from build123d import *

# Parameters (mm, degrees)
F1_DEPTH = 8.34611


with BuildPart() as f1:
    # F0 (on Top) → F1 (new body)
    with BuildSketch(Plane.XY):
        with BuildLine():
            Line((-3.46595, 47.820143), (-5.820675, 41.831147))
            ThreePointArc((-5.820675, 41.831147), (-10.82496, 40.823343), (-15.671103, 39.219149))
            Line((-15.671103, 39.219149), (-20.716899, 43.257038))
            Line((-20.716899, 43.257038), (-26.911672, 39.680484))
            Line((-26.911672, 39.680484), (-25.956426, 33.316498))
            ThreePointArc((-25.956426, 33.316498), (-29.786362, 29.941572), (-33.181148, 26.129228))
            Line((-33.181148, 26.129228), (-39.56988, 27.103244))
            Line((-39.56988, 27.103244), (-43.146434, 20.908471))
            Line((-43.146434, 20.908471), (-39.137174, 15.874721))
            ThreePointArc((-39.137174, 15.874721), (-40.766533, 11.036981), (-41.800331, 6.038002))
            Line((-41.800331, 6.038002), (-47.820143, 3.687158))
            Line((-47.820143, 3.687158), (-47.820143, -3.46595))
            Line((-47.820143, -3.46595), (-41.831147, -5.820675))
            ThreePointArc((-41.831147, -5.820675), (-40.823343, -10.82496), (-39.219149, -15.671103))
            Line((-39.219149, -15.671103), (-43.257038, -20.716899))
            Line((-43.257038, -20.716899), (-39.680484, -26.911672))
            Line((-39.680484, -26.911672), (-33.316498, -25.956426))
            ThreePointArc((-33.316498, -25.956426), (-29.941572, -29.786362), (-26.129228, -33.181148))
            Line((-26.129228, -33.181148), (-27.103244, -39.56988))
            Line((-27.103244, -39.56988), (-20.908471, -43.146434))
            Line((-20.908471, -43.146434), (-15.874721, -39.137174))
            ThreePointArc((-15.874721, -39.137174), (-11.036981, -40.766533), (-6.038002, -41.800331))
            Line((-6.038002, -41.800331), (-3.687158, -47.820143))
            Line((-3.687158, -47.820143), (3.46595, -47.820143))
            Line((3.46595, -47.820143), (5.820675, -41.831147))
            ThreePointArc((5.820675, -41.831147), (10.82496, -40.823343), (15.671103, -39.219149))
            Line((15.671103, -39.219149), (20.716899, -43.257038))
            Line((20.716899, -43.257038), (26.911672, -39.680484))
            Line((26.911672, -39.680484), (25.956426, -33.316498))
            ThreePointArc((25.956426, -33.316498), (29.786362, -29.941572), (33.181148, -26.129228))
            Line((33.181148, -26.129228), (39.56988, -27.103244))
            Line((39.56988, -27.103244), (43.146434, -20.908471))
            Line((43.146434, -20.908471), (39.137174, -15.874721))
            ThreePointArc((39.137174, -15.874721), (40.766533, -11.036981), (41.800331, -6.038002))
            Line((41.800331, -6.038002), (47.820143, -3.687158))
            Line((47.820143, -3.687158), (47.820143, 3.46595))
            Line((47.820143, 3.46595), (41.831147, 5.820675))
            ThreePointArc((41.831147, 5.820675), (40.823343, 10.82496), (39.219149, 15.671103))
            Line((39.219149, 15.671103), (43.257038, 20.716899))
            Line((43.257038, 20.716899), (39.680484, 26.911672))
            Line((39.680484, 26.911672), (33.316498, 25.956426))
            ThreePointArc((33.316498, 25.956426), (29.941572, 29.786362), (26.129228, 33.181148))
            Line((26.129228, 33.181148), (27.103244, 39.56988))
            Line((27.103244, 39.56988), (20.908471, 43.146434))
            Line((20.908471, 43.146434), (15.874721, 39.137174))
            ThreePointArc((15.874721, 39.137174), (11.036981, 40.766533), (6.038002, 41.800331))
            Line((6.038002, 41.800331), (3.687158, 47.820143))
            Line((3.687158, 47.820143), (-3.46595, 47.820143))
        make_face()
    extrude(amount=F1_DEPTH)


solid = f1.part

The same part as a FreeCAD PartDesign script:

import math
import FreeCAD as App
import Part
import Sketcher

V = App.Vector
Q = App.Units.Quantity

doc = App.newDocument("Part")
body = doc.addObject("PartDesign::Body", "Body")

# Sketch on XY plane
sketch1 = body.newObject("Sketcher::SketchObject", "Sketch")
sketch1.AttachmentSupport = (doc.getObject("XY_Plane"), [""])
sketch1.MapMode = "FlatFace"
sketch1.addGeometry([
    Part.LineSegment(V(-3.46595, 47.820143, 0), V(-5.820675, 41.831147, 0)),  # 0
    Part.ArcOfCircle(Part.Circle(V(0.00001, -0.000038, 0), V(0, 0, 1), 42.234209), math.radians(97.921673), math.radians(111.780548)),  # 1
    Part.LineSegment(V(-15.671103, 39.219149, 0), V(-20.716899, 43.257038, 0)),  # 2
    Part.LineSegment(V(-20.716899, 43.257038, 0), V(-26.911672, 39.680484, 0)),  # 3
    Part.LineSegment(V(-26.911672, 39.680484, 0), V(-25.956426, 33.316498, 0)),  # 4
    Part.ArcOfCircle(Part.Circle(V(0.00002, -0.000024, 0), V(0, 0, 1), 42.234201), math.radians(127.921668), math.radians(141.780547)),  # 5
    Part.LineSegment(V(-33.181148, 26.129228, 0), V(-39.56988, 27.103244, 0)),  # 6
    Part.LineSegment(V(-39.56988, 27.103244, 0), V(-43.146434, 20.908471, 0)),  # 7
    Part.LineSegment(V(-43.146434, 20.908471, 0), V(-39.137174, 15.874721, 0)),  # 8
    Part.ArcOfCircle(Part.Circle(V(-0.000023, 0.000007, 0), V(0, 0, 1), 42.234147), math.radians(157.921664), math.radians(171.780559)),  # 9
    Part.LineSegment(V(-41.800331, 6.038002, 0), V(-47.820143, 3.687158, 0)),  # 10
    Part.LineSegment(V(-47.820143, 3.687158, 0), V(-47.820143, -3.46595, 0)),  # 11
    Part.LineSegment(V(-47.820143, -3.46595, 0), V(-41.831147, -5.820675, 0)),  # 12
    Part.ArcOfCircle(Part.Circle(V(0.000038, 0.00001, 0), V(0, 0, 1), 42.234209), math.radians(-172.078327), math.radians(-158.219452)),  # 13
    Part.LineSegment(V(-39.219149, -15.671103, 0), V(-43.257038, -20.716899, 0)),  # 14
    Part.LineSegment(V(-43.257038, -20.716899, 0), V(-39.680484, -26.911672, 0)),  # 15
    Part.LineSegment(V(-39.680484, -26.911672, 0), V(-33.316498, -25.956426, 0)),  # 16
    Part.ArcOfCircle(Part.Circle(V(0.000024, 0.00002, 0), V(0, 0, 1), 42.234201), math.radians(-142.078332), math.radians(-128.219453)),  # 17
    Part.LineSegment(V(-26.129228, -33.181148, 0), V(-27.103244, -39.56988, 0)),  # 18
    Part.LineSegment(V(-27.103244, -39.56988, 0), V(-20.908471, -43.146434, 0)),  # 19
    Part.LineSegment(V(-20.908471, -43.146434, 0), V(-15.874721, -39.137174, 0)),  # 20
    Part.ArcOfCircle(Part.Circle(V(-0.000007, -0.000023, 0), V(0, 0, 1), 42.234147), math.radians(-112.078336), math.radians(-98.219441)),  # 21
    Part.LineSegment(V(-6.038002, -41.800331, 0), V(-3.687158, -47.820143, 0)),  # 22
    Part.LineSegment(V(-3.687158, -47.820143, 0), V(3.46595, -47.820143, 0)),  # 23
    Part.LineSegment(V(3.46595, -47.820143, 0), V(5.820675, -41.831147, 0)),  # 24
    Part.ArcOfCircle(Part.Circle(V(-0.00001, 0.000038, 0), V(0, 0, 1), 42.234209), math.radians(-82.078327), math.radians(-68.219452)),  # 25
    Part.LineSegment(V(15.671103, -39.219149, 0), V(20.716899, -43.257038, 0)),  # 26
    Part.LineSegment(V(20.716899, -43.257038, 0), V(26.911672, -39.680484, 0)),  # 27
    Part.LineSegment(V(26.911672, -39.680484, 0), V(25.956426, -33.316498, 0)),  # 28
    Part.ArcOfCircle(Part.Circle(V(-0.00002, 0.000024, 0), V(0, 0, 1), 42.234201), math.radians(-52.078332), math.radians(-38.219453)),  # 29
    Part.LineSegment(V(33.181148, -26.129228, 0), V(39.56988, -27.103244, 0)),  # 30
    Part.LineSegment(V(39.56988, -27.103244, 0), V(43.146434, -20.908471, 0)),  # 31
    Part.LineSegment(V(43.146434, -20.908471, 0), V(39.137174, -15.874721, 0)),  # 32
    Part.ArcOfCircle(Part.Circle(V(0.000023, -0.000007, 0), V(0, 0, 1), 42.234147), math.radians(-22.078336), math.radians(-8.219441)),  # 33
    Part.LineSegment(V(41.800331, -6.038002, 0), V(47.820143, -3.687158, 0)),  # 34
    Part.LineSegment(V(47.820143, -3.687158, 0), V(47.820143, 3.46595, 0)),  # 35
    Part.LineSegment(V(47.820143, 3.46595, 0), V(41.831147, 5.820675, 0)),  # 36
    Part.ArcOfCircle(Part.Circle(V(-0.000038, -0.00001, 0), V(0, 0, 1), 42.234209), math.radians(7.921673), math.radians(21.780548)),  # 37
    Part.LineSegment(V(39.219149, 15.671103, 0), V(43.257038, 20.716899, 0)),  # 38
    Part.LineSegment(V(43.257038, 20.716899, 0), V(39.680484, 26.911672, 0)),  # 39
    Part.LineSegment(V(39.680484, 26.911672, 0), V(33.316498, 25.956426, 0)),  # 40
    Part.ArcOfCircle(Part.Circle(V(-0.000024, -0.00002, 0), V(0, 0, 1), 42.234201), math.radians(37.921668), math.radians(51.780547)),  # 41
    Part.LineSegment(V(26.129228, 33.181148, 0), V(27.103244, 39.56988, 0)),  # 42
    Part.LineSegment(V(27.103244, 39.56988, 0), V(20.908471, 43.146434, 0)),  # 43
    Part.LineSegment(V(20.908471, 43.146434, 0), V(15.874721, 39.137174, 0)),  # 44
    Part.ArcOfCircle(Part.Circle(V(0.000007, 0.000023, 0), V(0, 0, 1), 42.234147), math.radians(67.921664), math.radians(81.780559)),  # 45
    Part.LineSegment(V(6.038002, 41.800331, 0), V(3.687158, 47.820143, 0)),  # 46
    Part.LineSegment(V(3.687158, 47.820143, 0), V(-3.46595, 47.820143, 0)),  # 47
], False)
sketch1.addConstraint([
    Sketcher.Constraint("Coincident", 0, 2, 1, 1),
    Sketcher.Constraint("Coincident", 1, 2, 2, 1),
    Sketcher.Constraint("Coincident", 2, 2, 3, 1),
    Sketcher.Constraint("Coincident", 3, 2, 4, 1),
    Sketcher.Constraint("Coincident", 4, 2, 5, 1),
    Sketcher.Constraint("Coincident", 5, 2, 6, 1),
    Sketcher.Constraint("Coincident", 6, 2, 7, 1),
    Sketcher.Constraint("Coincident", 7, 2, 8, 1),
    Sketcher.Constraint("Coincident", 8, 2, 9, 1),
    Sketcher.Constraint("Coincident", 9, 2, 10, 1),
    Sketcher.Constraint("Coincident", 10, 2, 11, 1),
    Sketcher.Constraint("Coincident", 11, 2, 12, 1),
    Sketcher.Constraint("Coincident", 12, 2, 13, 1),
    Sketcher.Constraint("Coincident", 13, 2, 14, 1),
    Sketcher.Constraint("Coincident", 14, 2, 15, 1),
    Sketcher.Constraint("Coincident", 15, 2, 16, 1),
    Sketcher.Constraint("Coincident", 16, 2, 17, 1),
    Sketcher.Constraint("Coincident", 17, 2, 18, 1),
    Sketcher.Constraint("Coincident", 18, 2, 19, 1),
    Sketcher.Constraint("Coincident", 19, 2, 20, 1),
    Sketcher.Constraint("Coincident", 20, 2, 21, 1),
    Sketcher.Constraint("Coincident", 21, 2, 22, 1),
    Sketcher.Constraint("Coincident", 22, 2, 23, 1),
    Sketcher.Constraint("Coincident", 23, 2, 24, 1),
    Sketcher.Constraint("Coincident", 24, 2, 25, 1),
    Sketcher.Constraint("Coincident", 25, 2, 26, 1),
    Sketcher.Constraint("Coincident", 26, 2, 27, 1),
    Sketcher.Constraint("Coincident", 27, 2, 28, 1),
    Sketcher.Constraint("Coincident", 28, 2, 29, 1),
    Sketcher.Constraint("Coincident", 29, 2, 30, 1),
    Sketcher.Constraint("Coincident", 30, 2, 31, 1),
    Sketcher.Constraint("Coincident", 31, 2, 32, 1),
    Sketcher.Constraint("Coincident", 32, 2, 33, 1),
    Sketcher.Constraint("Coincident", 33, 2, 34, 1),
    Sketcher.Constraint("Coincident", 34, 2, 35, 1),
    Sketcher.Constraint("Coincident", 35, 2, 36, 1),
    Sketcher.Constraint("Coincident", 36, 2, 37, 1),
    Sketcher.Constraint("Coincident", 37, 2, 38, 1),
    Sketcher.Constraint("Coincident", 38, 2, 39, 1),
    Sketcher.Constraint("Coincident", 39, 2, 40, 1),
    Sketcher.Constraint("Coincident", 40, 2, 41, 1),
    Sketcher.Constraint("Coincident", 41, 2, 42, 1),
    Sketcher.Constraint("Coincident", 42, 2, 43, 1),
    Sketcher.Constraint("Coincident", 43, 2, 44, 1),
    Sketcher.Constraint("Coincident", 44, 2, 45, 1),
    Sketcher.Constraint("Coincident", 45, 2, 46, 1),
    Sketcher.Constraint("Coincident", 46, 2, 47, 1),
    Sketcher.Constraint("Coincident", 47, 2, 0, 1),
    Sketcher.Constraint("Vertical", 11),
    Sketcher.Constraint("Horizontal", 23),
    Sketcher.Constraint("Vertical", 35),
    Sketcher.Constraint("Horizontal", 47),
    Sketcher.Constraint("Radius", 5, Q("42.234201 mm")),
    Sketcher.Constraint("Radius", 17, Q("42.234201 mm")),
    Sketcher.Constraint("Radius", 29, Q("42.234201 mm")),
    Sketcher.Constraint("Radius", 41, Q("42.234201 mm")),
    Sketcher.Constraint("Radius", 1, Q("42.234209 mm")),
    Sketcher.Constraint("Radius", 13, Q("42.234209 mm")),
    Sketcher.Constraint("Radius", 25, Q("42.234209 mm")),
    Sketcher.Constraint("Radius", 37, Q("42.234209 mm")),
    Sketcher.Constraint("DistanceY", -1, 1, 9, 2, Q("6.038002 mm")),
    Sketcher.Constraint("DistanceX", 21, 2, -1, 1, Q("6.038002 mm")),
    Sketcher.Constraint("DistanceY", 33, 2, -1, 1, Q("6.038002 mm")),
    Sketcher.Constraint("DistanceX", -1, 1, 45, 2, Q("6.038002 mm")),
    Sketcher.Constraint("Radius", 9, Q("42.234147 mm")),
    Sketcher.Constraint("Radius", 21, Q("42.234147 mm")),
    Sketcher.Constraint("Radius", 33, Q("42.234147 mm")),
    Sketcher.Constraint("Radius", 45, Q("42.234147 mm")),
    Sketcher.Constraint("DistanceY", 1, 2, 0, 2, Q("2.611998 mm")),
    Sketcher.Constraint("DistanceY", 25, 3, 2, 2, Q("43.257 mm")),
    Sketcher.Constraint("DistanceX", 12, 2, 13, 2, Q("2.611998 mm")),
    Sketcher.Constraint("DistanceY", 24, 2, 25, 2, Q("2.611998 mm")),
    Sketcher.Constraint("DistanceX", 37, 2, 36, 2, Q("2.611998 mm")),
    Sketcher.Constraint("DistanceX", 2, 2, -1, 1, Q("20.716899 mm")),
    Sketcher.Constraint("DistanceY", -1, 1, 4, 2, Q("33.316498 mm")),
    Sketcher.Constraint("DistanceY", 14, 2, -1, 1, Q("20.716899 mm")),
    Sketcher.Constraint("DistanceX", 16, 2, -1, 1, Q("33.316498 mm")),
    Sketcher.Constraint("DistanceX", -1, 1, 26, 2, Q("20.716899 mm")),
    Sketcher.Constraint("DistanceY", 28, 2, -1, 1, Q("33.316498 mm")),
    Sketcher.Constraint("DistanceY", -1, 1, 38, 2, Q("20.716899 mm")),
    Sketcher.Constraint("DistanceX", -1, 1, 40, 2, Q("33.316498 mm")),
    Sketcher.Constraint("DistanceX", 0, 2, 17, 3, Q("5.820699 mm")),
    Sketcher.Constraint("Distance", 4, Q("6.435279 mm")),
    Sketcher.Constraint("Distance", 8, Q("6.435278 mm")),
    Sketcher.Constraint("Distance", 16, Q("6.435279 mm")),
    Sketcher.Constraint("Distance", 20, Q("6.435278 mm")),
    Sketcher.Constraint("Distance", 28, Q("6.435279 mm")),
    Sketcher.Constraint("Distance", 32, Q("6.435278 mm")),
    Sketcher.Constraint("Distance", 40, Q("6.435279 mm")),
    Sketcher.Constraint("Distance", 44, Q("6.435278 mm")),
    Sketcher.Constraint("DistanceX", 23, 1, 23, 2, Q("7.153108 mm")),
    Sketcher.Constraint("DistanceX", 47, 2, 47, 1, Q("7.153108 mm")),
    Sketcher.Constraint("DistanceY", 11, 2, 11, 1, Q("7.153108 mm")),
    Sketcher.Constraint("DistanceY", 35, 1, 35, 2, Q("7.153108 mm")),
    Sketcher.Constraint("DistanceY", -1, 1, 1, 2, Q("39.219149 mm")),
    Sketcher.Constraint("DistanceX", 3, 2, -1, 1, Q("26.911672 mm")),
    Sketcher.Constraint("DistanceX", 5, 2, -1, 1, Q("33.181148 mm")),
    Sketcher.Constraint("DistanceY", -1, 1, 5, 2, Q("26.129228 mm")),
    Sketcher.Constraint("DistanceX", 6, 2, -1, 1, Q("39.56988 mm")),
    Sketcher.Constraint("DistanceY", -1, 1, 7, 2, Q("20.908471 mm")),
    Sketcher.Constraint("DistanceY", -1, 1, 8, 2, Q("15.874721 mm")),
    Sketcher.Constraint("DistanceX", 9, 2, -1, 1, Q("41.800331 mm")),
    Sketcher.Constraint("DistanceY", -1, 1, 10, 2, Q("3.687158 mm")),
    Sketcher.Constraint("DistanceX", 13, 2, -1, 1, Q("39.219149 mm")),
    Sketcher.Constraint("DistanceY", 15, 2, -1, 1, Q("26.911672 mm")),
    Sketcher.Constraint("DistanceX", 17, 2, -1, 1, Q("26.129228 mm")),
    Sketcher.Constraint("DistanceY", 17, 2, -1, 1, Q("33.181148 mm")),
    Sketcher.Constraint("DistanceY", 18, 2, -1, 1, Q("39.56988 mm")),
    Sketcher.Constraint("DistanceX", 19, 2, -1, 1, Q("20.908471 mm")),
    Sketcher.Constraint("DistanceX", 20, 2, -1, 1, Q("15.874721 mm")),
    Sketcher.Constraint("DistanceY", 21, 2, -1, 1, Q("41.800331 mm")),
    Sketcher.Constraint("DistanceX", 22, 2, -1, 1, Q("3.687158 mm")),
    Sketcher.Constraint("DistanceY", 25, 2, -1, 1, Q("39.219149 mm")),
    Sketcher.Constraint("DistanceX", -1, 1, 27, 2, Q("26.911672 mm")),
    Sketcher.Constraint("DistanceX", -1, 1, 29, 2, Q("33.181148 mm")),
    Sketcher.Constraint("DistanceY", 29, 2, -1, 1, Q("26.129228 mm")),
    Sketcher.Constraint("DistanceX", -1, 1, 30, 2, Q("39.56988 mm")),
    Sketcher.Constraint("DistanceY", 31, 2, -1, 1, Q("20.908471 mm")),
    Sketcher.Constraint("DistanceY", 32, 2, -1, 1, Q("15.874721 mm")),
    Sketcher.Constraint("DistanceX", -1, 1, 33, 2, Q("41.800331 mm")),
    Sketcher.Constraint("DistanceY", 34, 2, -1, 1, Q("3.687158 mm")),
    Sketcher.Constraint("DistanceX", -1, 1, 37, 2, Q("39.219149 mm")),
    Sketcher.Constraint("DistanceY", -1, 1, 39, 2, Q("26.911672 mm")),
    Sketcher.Constraint("DistanceX", -1, 1, 41, 2, Q("26.129228 mm")),
    Sketcher.Constraint("DistanceY", -1, 1, 41, 2, Q("33.181148 mm")),
    Sketcher.Constraint("DistanceY", -1, 1, 42, 2, Q("39.56988 mm")),
    Sketcher.Constraint("DistanceX", -1, 1, 43, 2, Q("20.908471 mm")),
    Sketcher.Constraint("DistanceX", -1, 1, 44, 2, Q("15.874721 mm")),
    Sketcher.Constraint("DistanceY", -1, 1, 45, 2, Q("41.800331 mm")),
    Sketcher.Constraint("DistanceX", -1, 1, 46, 2, Q("3.687158 mm")),
    Sketcher.Constraint("DistanceY", 25, 3, 0, 2, Q("41.831109 mm")),
    Sketcher.Constraint("DistanceX", 0, 2, 45, 3, Q("5.820682 mm")),
    Sketcher.Constraint("DistanceY", 9, 3, 0, 2, Q("41.83114 mm")),
    Sketcher.Constraint("DistanceX", 1, 2, 45, 3, Q("15.67111 mm")),
    Sketcher.Constraint("DistanceX", 1, 2, 9, 3, Q("15.67108 mm")),
    Sketcher.Constraint("DistanceX", 2, 2, 25, 3, Q("20.716889 mm")),
    Sketcher.Constraint("DistanceX", 2, 2, 29, 3, Q("20.716879 mm")),
    Sketcher.Constraint("DistanceY", 29, 3, 3, 2, Q("39.68046 mm")),
    Sketcher.Constraint("DistanceY", 6, 2, 3, 2, Q("12.57724 mm")),
    Sketcher.Constraint("DistanceX", 10, 2, 8, 2, Q("8.682969 mm")),
    Sketcher.Constraint("DistanceY", 13, 2, 10, 2, Q("19.358261 mm")),
    Sketcher.Constraint("DistanceX", 14, 2, 13, 2, Q("4.037889 mm")),
    Sketcher.Constraint("DistanceY", 16, 2, 12, 2, Q("20.135751 mm")),
    Sketcher.Constraint("DistanceX", 15, 2, 18, 2, Q("12.57724 mm")),
    Sketcher.Constraint("DistanceY", 19, 2, 15, 2, Q("16.234762 mm")),
    Sketcher.Constraint("DistanceY", 22, 2, 20, 2, Q("8.682969 mm")),
    Sketcher.Constraint("DistanceY", 26, 2, 25, 2, Q("4.037889 mm")),
    Sketcher.Constraint("DistanceY", 27, 2, 30, 2, Q("12.57724 mm")),
    Sketcher.Constraint("DistanceX", 27, 2, 31, 2, Q("16.234762 mm")),
    Sketcher.Constraint("DistanceX", 32, 2, 34, 2, Q("8.682969 mm")),
    Sketcher.Constraint("DistanceY", 34, 2, 37, 2, Q("19.358261 mm")),
    Sketcher.Constraint("DistanceX", 37, 2, 38, 2, Q("4.037889 mm")),
    Sketcher.Constraint("DistanceX", 39, 2, 35, 2, Q("8.139659 mm")),
    Sketcher.Constraint("DistanceY", 36, 2, 40, 2, Q("20.135751 mm")),
    Sketcher.Constraint("DistanceX", 42, 2, 39, 2, Q("12.57724 mm")),
    Sketcher.Constraint("DistanceY", 44, 2, 46, 2, Q("8.682969 mm")),
])
pad1 = body.newObject("PartDesign::Pad", "Pad")
pad1.Profile = sketch1
pad1.Length = 8.34611

doc.recompute()
